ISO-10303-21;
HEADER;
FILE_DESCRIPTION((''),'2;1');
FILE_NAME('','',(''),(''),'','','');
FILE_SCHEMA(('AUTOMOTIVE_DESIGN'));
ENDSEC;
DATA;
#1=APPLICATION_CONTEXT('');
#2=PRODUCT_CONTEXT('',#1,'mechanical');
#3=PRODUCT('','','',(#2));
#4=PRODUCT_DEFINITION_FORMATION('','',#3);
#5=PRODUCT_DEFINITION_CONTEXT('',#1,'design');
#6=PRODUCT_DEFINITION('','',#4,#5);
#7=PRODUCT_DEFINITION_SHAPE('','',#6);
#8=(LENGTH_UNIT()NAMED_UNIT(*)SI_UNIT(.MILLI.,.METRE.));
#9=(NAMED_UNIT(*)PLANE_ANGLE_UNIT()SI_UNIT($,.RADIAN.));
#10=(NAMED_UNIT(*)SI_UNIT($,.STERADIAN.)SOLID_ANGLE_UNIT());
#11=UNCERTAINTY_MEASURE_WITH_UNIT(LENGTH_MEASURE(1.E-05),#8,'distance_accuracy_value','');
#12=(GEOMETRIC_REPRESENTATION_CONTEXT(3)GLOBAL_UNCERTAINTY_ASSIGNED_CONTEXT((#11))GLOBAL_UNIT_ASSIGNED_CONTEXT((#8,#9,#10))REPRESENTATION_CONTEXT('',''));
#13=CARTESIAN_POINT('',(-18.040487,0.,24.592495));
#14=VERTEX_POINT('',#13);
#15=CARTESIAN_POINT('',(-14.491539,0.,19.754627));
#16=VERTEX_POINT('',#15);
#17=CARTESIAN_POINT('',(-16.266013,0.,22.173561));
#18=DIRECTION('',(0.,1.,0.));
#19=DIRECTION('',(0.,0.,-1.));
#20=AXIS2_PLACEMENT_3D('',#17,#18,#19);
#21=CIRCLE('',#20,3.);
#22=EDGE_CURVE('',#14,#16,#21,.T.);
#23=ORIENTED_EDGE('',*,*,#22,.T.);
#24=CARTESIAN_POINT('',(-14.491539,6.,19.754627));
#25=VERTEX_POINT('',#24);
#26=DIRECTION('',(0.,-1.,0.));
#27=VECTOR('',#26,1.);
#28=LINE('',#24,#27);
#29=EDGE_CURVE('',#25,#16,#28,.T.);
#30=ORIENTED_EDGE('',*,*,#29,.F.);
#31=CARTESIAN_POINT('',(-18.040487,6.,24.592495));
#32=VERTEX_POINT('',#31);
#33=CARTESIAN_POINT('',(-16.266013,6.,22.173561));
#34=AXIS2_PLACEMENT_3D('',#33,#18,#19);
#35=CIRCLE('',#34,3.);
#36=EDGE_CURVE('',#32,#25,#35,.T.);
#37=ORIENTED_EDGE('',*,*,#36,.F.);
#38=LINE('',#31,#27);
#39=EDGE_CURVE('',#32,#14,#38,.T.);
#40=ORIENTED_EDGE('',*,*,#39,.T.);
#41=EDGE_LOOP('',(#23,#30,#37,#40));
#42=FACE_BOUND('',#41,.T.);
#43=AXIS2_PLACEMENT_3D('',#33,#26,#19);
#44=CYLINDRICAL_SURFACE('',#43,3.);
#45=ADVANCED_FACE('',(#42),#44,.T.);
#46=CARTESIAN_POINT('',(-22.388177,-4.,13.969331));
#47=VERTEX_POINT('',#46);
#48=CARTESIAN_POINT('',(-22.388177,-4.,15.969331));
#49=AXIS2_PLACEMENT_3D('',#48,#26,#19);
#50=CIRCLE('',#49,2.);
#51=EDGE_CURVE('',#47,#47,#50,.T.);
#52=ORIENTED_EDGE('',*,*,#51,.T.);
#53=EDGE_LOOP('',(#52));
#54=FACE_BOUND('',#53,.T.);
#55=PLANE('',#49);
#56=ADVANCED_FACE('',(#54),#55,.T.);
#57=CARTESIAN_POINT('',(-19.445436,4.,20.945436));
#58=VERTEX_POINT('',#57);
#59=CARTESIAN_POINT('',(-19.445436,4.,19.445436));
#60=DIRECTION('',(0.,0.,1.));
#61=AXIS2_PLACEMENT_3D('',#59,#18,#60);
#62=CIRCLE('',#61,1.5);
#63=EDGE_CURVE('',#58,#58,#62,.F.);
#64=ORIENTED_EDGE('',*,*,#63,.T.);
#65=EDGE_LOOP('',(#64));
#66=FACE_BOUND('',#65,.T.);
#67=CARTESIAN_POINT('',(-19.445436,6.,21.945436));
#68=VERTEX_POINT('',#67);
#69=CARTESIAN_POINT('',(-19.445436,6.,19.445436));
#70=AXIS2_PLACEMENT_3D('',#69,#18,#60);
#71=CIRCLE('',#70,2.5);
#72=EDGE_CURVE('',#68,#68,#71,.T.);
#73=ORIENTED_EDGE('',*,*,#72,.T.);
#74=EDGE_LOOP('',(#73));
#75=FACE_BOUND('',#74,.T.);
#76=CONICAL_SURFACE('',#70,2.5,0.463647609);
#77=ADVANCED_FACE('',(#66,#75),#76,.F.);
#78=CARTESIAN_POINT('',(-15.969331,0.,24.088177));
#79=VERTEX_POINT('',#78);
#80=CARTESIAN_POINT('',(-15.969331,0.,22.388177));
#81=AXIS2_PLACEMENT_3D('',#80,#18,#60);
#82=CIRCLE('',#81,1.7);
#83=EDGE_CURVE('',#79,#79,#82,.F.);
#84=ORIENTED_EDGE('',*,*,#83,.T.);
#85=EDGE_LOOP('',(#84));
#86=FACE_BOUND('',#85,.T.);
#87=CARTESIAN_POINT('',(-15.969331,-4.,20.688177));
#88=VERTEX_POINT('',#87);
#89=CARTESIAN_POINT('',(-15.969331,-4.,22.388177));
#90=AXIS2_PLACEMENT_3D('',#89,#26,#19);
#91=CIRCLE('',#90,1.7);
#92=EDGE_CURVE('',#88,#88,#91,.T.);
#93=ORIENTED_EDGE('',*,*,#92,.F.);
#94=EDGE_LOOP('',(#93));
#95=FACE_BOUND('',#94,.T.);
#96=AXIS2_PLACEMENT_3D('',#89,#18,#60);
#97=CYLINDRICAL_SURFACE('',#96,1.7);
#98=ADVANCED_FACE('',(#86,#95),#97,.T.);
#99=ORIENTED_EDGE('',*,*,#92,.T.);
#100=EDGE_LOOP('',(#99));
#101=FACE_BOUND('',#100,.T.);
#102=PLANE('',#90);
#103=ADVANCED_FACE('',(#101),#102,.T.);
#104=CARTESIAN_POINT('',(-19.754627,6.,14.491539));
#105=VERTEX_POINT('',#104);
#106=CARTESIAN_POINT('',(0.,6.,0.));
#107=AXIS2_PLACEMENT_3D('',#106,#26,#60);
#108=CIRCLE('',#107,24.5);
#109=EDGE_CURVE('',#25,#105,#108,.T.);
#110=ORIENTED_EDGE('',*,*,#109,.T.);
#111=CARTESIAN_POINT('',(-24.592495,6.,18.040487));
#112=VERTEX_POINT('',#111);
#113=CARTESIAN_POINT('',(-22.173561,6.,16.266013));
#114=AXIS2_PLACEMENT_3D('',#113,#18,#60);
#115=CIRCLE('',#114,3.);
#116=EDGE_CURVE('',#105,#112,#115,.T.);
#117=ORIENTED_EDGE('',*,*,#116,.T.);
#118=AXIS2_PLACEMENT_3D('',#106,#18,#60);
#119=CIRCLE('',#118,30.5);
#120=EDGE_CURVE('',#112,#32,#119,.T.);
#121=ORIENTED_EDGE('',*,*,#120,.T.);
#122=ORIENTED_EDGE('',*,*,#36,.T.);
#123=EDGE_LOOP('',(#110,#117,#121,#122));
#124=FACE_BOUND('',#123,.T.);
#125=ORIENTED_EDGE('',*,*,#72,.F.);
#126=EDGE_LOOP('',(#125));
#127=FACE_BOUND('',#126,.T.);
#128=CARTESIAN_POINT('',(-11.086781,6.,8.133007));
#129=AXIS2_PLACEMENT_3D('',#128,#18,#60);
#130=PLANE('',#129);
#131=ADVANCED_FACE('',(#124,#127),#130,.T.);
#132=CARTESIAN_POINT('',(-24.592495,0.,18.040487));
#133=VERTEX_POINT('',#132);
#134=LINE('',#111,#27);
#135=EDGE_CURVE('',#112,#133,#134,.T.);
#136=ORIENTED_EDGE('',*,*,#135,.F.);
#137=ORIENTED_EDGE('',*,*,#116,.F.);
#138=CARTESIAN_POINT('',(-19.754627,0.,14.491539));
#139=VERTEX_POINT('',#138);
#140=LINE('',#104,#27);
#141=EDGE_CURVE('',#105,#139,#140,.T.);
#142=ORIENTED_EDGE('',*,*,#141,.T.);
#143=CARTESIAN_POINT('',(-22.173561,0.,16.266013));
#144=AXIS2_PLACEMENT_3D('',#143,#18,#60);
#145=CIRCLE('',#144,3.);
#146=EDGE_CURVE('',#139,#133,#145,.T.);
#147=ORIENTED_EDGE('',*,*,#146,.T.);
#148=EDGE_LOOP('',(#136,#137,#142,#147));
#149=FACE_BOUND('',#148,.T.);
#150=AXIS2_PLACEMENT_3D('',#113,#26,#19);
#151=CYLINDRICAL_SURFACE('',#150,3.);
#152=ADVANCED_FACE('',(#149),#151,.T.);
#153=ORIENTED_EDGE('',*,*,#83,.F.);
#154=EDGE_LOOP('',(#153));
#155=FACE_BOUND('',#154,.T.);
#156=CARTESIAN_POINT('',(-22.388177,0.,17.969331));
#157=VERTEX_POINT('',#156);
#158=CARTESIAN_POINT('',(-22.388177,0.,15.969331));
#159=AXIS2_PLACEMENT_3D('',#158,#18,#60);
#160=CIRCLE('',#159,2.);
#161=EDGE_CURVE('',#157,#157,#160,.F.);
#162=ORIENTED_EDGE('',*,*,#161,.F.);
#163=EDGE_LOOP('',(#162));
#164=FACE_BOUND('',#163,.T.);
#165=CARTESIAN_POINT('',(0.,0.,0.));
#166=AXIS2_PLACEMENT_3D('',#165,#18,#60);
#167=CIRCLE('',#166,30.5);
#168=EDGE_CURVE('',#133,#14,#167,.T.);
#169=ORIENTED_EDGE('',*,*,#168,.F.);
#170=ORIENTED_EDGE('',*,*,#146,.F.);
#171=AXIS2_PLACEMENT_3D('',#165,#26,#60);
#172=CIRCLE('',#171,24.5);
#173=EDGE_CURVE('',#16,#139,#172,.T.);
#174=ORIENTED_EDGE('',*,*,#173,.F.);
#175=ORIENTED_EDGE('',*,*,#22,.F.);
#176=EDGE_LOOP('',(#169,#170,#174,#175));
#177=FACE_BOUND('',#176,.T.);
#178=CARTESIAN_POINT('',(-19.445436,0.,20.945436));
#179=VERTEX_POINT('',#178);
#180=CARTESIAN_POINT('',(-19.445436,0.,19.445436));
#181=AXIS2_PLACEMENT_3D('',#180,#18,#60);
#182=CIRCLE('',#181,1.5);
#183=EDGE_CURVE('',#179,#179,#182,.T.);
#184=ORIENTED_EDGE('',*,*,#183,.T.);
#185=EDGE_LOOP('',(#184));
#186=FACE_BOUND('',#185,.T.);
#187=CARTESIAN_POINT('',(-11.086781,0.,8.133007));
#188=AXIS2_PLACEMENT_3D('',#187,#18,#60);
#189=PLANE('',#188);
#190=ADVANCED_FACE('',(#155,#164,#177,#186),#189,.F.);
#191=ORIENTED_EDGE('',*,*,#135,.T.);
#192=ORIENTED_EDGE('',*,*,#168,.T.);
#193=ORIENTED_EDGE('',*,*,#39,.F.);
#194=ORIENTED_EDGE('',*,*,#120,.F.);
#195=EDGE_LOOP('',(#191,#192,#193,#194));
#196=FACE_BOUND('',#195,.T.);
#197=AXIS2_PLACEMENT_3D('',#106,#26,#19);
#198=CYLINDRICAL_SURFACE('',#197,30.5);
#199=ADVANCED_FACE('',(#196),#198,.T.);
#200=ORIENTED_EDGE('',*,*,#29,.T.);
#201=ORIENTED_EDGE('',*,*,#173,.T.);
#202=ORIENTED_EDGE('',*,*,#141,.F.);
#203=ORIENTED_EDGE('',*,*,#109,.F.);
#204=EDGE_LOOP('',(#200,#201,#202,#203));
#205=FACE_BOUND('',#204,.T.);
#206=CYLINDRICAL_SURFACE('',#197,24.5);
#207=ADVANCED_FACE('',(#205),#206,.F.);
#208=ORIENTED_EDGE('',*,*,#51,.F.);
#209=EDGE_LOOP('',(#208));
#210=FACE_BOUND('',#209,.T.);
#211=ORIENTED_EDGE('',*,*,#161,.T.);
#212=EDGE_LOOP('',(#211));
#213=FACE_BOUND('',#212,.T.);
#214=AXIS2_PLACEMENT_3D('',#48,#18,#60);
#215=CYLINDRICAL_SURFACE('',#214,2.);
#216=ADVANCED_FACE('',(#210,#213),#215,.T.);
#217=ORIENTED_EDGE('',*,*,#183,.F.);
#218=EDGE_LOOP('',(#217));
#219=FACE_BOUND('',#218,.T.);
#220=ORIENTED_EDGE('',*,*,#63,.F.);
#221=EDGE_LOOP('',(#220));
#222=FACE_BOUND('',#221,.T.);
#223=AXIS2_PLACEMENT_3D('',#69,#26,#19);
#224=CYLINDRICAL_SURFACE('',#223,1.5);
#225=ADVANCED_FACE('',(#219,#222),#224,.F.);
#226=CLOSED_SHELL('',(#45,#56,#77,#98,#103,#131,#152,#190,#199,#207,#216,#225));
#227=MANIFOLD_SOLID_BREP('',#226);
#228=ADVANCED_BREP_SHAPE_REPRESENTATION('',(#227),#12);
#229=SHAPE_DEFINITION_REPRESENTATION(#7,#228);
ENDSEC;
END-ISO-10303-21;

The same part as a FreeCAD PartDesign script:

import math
import FreeCAD as App
import Part
import Sketcher
from FreeCAD import Vector

doc = App.newDocument("Part")
body = doc.addObject("PartDesign::Body", "Body")

sketch1 = body.newObject("Sketcher::SketchObject", "Sketch")
sketch1.AttachmentSupport = (doc.getObject("XZ_Plane"), [""])
sketch1.MapMode = "FlatFace"
sketch1.addGeometry([
    Part.ArcOfCircle(Part.Circle(Vector(0, 0, 0), Vector(0, 0, 1), 30.5), math.radians(126.262913), math.radians(143.737087)),
    Part.ArcOfCircle(Part.Circle(Vector(-16.266013, 22.173561, 0), Vector(0, 0, 1), 3), math.radians(-53.737087), math.radians(126.262913)),
    Part.ArcOfCircle(Part.Circle(Vector(0, 0, 0), Vector(0, 0, 1), 24.5), math.radians(126.262913), math.radians(143.737087)),
    Part.ArcOfCircle(Part.Circle(Vector(-22.173561, 16.266013, 0), Vector(0, 0, 1), 3), math.radians(143.737087), math.radians(323.737087)),
    Part.Circle(Vector(-19.445436, 19.445436, 0), Vector(0, 0, 1), 1.5),
], False)
sketch1.addConstraint([
    Sketcher.Constraint("Tangent", 0, 1, 1, 2),
    Sketcher.Constraint("Tangent", 1, 1, 2, 1),
    Sketcher.Constraint("Tangent", 2, 2, 3, 2),
    Sketcher.Constraint("Tangent", 3, 1, 0, 2),
    Sketcher.Constraint("Coincident", 0, 3, -1, 1),
    Sketcher.Constraint("Coincident", 2, 3, -1, 1),
    Sketcher.Constraint("Diameter", 4, 3.0),
    Sketcher.Constraint("Radius", 1, 3.0),
    Sketcher.Constraint("Radius", 0, 30.5),
    Sketcher.Constraint("DistanceY", -1, 1, 1, 3, 22.173561),
    Sketcher.Constraint("DistanceX", 3, 3, -1, 1, 22.173561),
    Sketcher.Constraint("DistanceX", 4, 3, 0, 1, 1.404949),
    Sketcher.Constraint("DistanceY", 4, 3, 0, 1, 5.147059),
])
pad1 = body.newObject("PartDesign::Pad", "Pad")
pad1.Profile = sketch1
pad1.Length = 6
pad1.Reversed = True

sketch2 = body.newObject("Sketcher::SketchObject", "Sketch001")
sketch2.AttachmentSupport = (doc.getObject("YZ_Plane"), [""])
sketch2.MapMode = "FlatFace"
sketch2.AttachmentOffset = App.Placement(Vector(0, 0, -19.445436), App.Rotation())
sketch2.addGeometry([
    Part.LineSegment(Vector(6, 19.445436, 0), Vector(6, 21.945436, 0)),
    Part.LineSegment(Vector(6, 21.945436, 0), Vector(3.5, 20.695436, 0)),
    Part.LineSegment(Vector(3.5, 20.695436, 0), Vector(3.5, 19.445436, 0)),
    Part.LineSegment(Vector(3.5, 19.445436, 0), Vector(6, 19.445436, 0)),
], False)
sketch2.addGeometry(Part.LineSegment(Vector(6, 19.445436, 0), Vector(3.5, 19.445436, 0)), True)
sketch2.addConstraint([
    Sketcher.Constraint("Coincident", 0, 2, 1, 1),
    Sketcher.Constraint("Coincident", 1, 2, 2, 1),
    Sketcher.Constraint("Coincident", 2, 2, 3, 1),
    Sketcher.Constraint("Coincident", 3, 2, 0, 1),
    Sketcher.Constraint("Vertical", 0),
    Sketcher.Constraint("Vertical", 2),
    Sketcher.Constraint("Horizontal", 3),
    Sketcher.Constraint("Horizontal", 4),
    Sketcher.Constraint("Coincident", 4, 1, 3, 2),
    Sketcher.Constraint("Vertical", 1, 2, 4, 2),
    Sketcher.Constraint("Equal", 4, 0),
    Sketcher.Constraint("DistanceX", 3, 1, 3, 2, 2.5),
    Sketcher.Constraint("DistanceX", -1, 1, 0, 2, 6.0),
    Sketcher.Constraint("DistanceY", 2, 2, 2, 1, 1.25),
    Sketcher.Constraint("DistanceY", -1, 1, 0, 2, 21.945436),
])
groove = body.newObject("PartDesign::Groove", "Groove")
groove.Profile = sketch2
groove.ReferenceAxis = (sketch2, ["Axis0"])
groove.Angle = 360

sketch3 = body.newObject("Sketcher::SketchObject", "Sketch002")
sketch3.AttachmentSupport = (doc.getObject("XZ_Plane"), [""])
sketch3.MapMode = "FlatFace"
sketch3.addGeometry([
    Part.Circle(Vector(-15.969331, 22.388177, 0), Vector(0, 0, 1), 1.7),
    Part.Circle(Vector(-22.388177, 15.969331, 0), Vector(0, 0, 1), 2),
], False)
sketch3.addConstraint([
    Sketcher.Constraint("Diameter", 1, 4.0),
    Sketcher.Constraint("Diameter", 0, 3.4),
    Sketcher.Constraint("DistanceX", 0, 3, -1, 1, 15.969331),
    Sketcher.Constraint("DistanceY", -1, 1, 1, 3, 15.969331),
    Sketcher.Constraint("DistanceY", -1, 1, 0, 3, 22.388177),
    Sketcher.Constraint("DistanceX", 1, 3, -1, 1, 22.388177),
])
pad2 = body.newObject("PartDesign::Pad", "Pad001")
pad2.Profile = sketch3
pad2.Length = 4

doc.recompute()
